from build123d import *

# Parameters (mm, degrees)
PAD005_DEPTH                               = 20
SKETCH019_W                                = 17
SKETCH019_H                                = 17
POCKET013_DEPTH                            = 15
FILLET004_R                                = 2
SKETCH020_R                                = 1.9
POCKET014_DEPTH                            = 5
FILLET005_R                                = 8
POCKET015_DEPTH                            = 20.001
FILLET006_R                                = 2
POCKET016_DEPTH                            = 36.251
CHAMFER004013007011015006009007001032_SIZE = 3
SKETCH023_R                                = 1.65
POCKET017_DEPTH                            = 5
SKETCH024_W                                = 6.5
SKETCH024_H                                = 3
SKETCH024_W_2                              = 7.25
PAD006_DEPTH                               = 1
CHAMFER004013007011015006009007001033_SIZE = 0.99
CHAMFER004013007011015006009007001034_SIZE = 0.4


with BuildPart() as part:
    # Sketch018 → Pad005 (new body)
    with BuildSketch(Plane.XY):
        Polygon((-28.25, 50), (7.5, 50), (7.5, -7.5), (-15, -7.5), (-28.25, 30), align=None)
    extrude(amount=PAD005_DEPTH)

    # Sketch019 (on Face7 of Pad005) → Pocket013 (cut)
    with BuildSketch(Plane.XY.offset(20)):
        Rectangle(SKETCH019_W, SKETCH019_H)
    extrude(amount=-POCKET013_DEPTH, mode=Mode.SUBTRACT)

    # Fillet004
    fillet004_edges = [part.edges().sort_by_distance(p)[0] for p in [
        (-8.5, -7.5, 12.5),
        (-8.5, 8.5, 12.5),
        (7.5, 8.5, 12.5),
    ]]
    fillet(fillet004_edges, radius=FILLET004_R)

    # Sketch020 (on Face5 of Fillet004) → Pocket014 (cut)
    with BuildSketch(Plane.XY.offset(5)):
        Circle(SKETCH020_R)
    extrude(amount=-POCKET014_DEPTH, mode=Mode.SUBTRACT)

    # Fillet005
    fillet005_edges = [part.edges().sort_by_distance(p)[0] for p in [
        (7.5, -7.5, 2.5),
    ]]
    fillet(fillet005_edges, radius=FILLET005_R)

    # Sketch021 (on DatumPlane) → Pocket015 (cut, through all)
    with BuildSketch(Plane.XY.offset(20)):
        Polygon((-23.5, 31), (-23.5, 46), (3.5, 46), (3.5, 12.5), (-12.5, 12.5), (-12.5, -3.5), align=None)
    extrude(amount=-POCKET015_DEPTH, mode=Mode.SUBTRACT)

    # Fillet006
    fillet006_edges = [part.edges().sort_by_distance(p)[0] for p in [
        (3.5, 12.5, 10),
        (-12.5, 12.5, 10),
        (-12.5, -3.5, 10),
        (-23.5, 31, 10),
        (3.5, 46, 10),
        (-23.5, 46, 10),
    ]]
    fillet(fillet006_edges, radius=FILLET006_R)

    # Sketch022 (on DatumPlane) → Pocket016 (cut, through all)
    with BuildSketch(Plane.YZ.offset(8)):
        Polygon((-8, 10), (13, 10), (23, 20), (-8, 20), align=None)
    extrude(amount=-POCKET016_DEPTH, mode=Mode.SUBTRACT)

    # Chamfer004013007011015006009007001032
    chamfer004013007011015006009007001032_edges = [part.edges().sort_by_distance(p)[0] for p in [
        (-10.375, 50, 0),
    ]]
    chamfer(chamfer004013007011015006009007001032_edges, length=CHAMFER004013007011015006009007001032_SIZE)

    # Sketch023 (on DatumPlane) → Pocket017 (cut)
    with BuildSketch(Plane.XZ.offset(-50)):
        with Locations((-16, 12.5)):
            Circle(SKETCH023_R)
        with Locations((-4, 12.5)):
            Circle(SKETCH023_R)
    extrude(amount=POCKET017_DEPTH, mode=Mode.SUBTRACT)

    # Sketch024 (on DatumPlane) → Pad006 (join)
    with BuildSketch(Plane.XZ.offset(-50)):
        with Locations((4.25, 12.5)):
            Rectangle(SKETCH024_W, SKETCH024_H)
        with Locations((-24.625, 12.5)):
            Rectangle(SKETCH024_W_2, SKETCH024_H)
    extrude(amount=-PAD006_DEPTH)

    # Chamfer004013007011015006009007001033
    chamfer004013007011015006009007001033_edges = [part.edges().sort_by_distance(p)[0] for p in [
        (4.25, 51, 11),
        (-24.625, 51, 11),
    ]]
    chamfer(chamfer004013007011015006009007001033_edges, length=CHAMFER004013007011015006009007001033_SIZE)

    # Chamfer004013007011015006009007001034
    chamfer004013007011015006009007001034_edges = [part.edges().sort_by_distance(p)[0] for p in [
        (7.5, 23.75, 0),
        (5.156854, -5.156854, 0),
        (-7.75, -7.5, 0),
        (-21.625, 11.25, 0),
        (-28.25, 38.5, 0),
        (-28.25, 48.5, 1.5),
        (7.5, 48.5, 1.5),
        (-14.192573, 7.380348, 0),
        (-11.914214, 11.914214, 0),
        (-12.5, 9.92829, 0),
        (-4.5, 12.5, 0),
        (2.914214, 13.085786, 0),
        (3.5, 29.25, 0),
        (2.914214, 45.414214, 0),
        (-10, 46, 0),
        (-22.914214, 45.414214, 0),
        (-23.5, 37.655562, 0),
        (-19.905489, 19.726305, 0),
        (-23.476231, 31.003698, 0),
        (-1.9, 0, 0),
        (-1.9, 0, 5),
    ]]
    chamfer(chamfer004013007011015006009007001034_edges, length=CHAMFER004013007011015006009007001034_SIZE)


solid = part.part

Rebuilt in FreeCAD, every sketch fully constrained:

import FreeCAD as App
import Part
import Sketcher
Q = App.Units.Quantity


def edges_at(feature, points):
    """Names of the edges that pass closest to the given points."""
    edges = feature.Shape.Edges
    near = lambda p: min(range(len(edges)), key=lambda i: edges[i].distToShape(Part.Vertex(*p))[0])
    return sorted({f"Edge{near(p) + 1}" for p in points})


def add_polygon(sketch, points):
    """Adds a closed chain of lines whose ends are joined by coincident constraints."""
    first, n = sketch.GeometryCount, len(points)
    for a, b in zip(points, points[1:] + points[:1]):
        sketch.addGeometry(Part.LineSegment(App.Vector(*a, 0), App.Vector(*b, 0)), False)
    for i in range(n):
        sketch.addConstraint(Sketcher.Constraint("Coincident", first + i, 2, first + (i + 1) % n, 1))

doc = App.newDocument("Part")
params = doc.addObject("Spreadsheet::Sheet", "Params")
for row, (alias, value) in enumerate([
    ("sketch1_height", "20 mm"),
    ("sketch1_width", "22.5 mm"),
    ("sketch1_height2", "57.5 mm"),
    ("sketch1_width2", "35.75 mm"),
    ("pad1_length", "20 mm"),
    ("sketch2_width", "17 mm"),
    ("pocket1_length", "15 mm"),
    ("fillet_radius", "2 mm"),
    ("sketch3_diameter", "3.8 mm"),
    ("pocket2_length", "5 mm"),
    ("fillet2_radius", "8 mm"),
    ("sketch4_width", "16 mm"),
    ("sketch4_width2", "27 mm"),
    ("sketch4_height", "15 mm"),
    ("sketch4_height2", "33.5 mm"),
    ("fillet3_radius", "2 mm"),
    ("sketch5_width", "21 mm"),
    ("sketch5_width2", "31 mm"),
    ("sketch5_height", "10 mm"),
    ("chamfer_size", "3 mm"),
    ("sketch6_diameter", "3.3 mm"),
    ("pocket5_length", "5 mm"),
    ("sketch7_height", "3 mm"),
    ("sketch7_width", "6.5 mm"),
    ("sketch7_width2", "7.25 mm"),
    ("pad2_length", "1 mm"),
    ("chamfer2_size", "0.99 mm"),
    ("chamfer3_size", "0.4 mm"),
], start=1):
    params.set(f"A{row}", alias)
    params.set(f"B{row}", "=" + value)
    params.setAlias(f"B{row}", alias)

body = doc.addObject("PartDesign::Body", "Body")

# Sketch on XY plane
sketch1 = doc.addObject("Sketcher::SketchObject", "Sketch")
body.addObject(sketch1)
sketch1.AttachmentSupport = (doc.XY_Plane, [""])
sketch1.MapMode = "FlatFace"
add_polygon(sketch1, [(7.5, 50), (-28.25, 50), (-28.25, 30), (-15, -7.5), (7.5, -7.5)])  # lines 0-4
sketch1.addConstraint([
    Sketcher.Constraint("Horizontal", 0),
    Sketcher.Constraint("Vertical", 1),
    Sketcher.Constraint("Horizontal", 3),
    Sketcher.Constraint("Vertical", 4),
    Sketcher.Constraint("DistanceY", 1, 2, 1, 1, Q("20 mm")),
    Sketcher.Constraint("DistanceX", 3, 1, 3, 2, Q("22.5 mm")),
    Sketcher.Constraint("DistanceY", 4, 1, 4, 2, Q("57.5 mm")),
    Sketcher.Constraint("DistanceY", -1, 1, 0, 2, Q("50 mm")),
    Sketcher.Constraint("DistanceX", 2, 2, -1, 1, Q("15 mm")),
    Sketcher.Constraint("DistanceX", 0, 2, 0, 1, Q("35.75 mm")),
])
sketch1.setExpression("Constraints[9]", "Params.sketch1_height")
sketch1.setExpression("Constraints[10]", "Params.sketch1_width")
sketch1.setExpression("Constraints[11]", "Params.sketch1_height2")
sketch1.setExpression("Constraints[14]", "Params.sketch1_width2")
pad1 = doc.addObject("PartDesign::Pad", "Pad")
body.addObject(pad1)
pad1.Profile = sketch1
pad1.setExpression("Length", "Params.pad1_length")

# Sketch on XY plane
sketch2 = doc.addObject("Sketcher::SketchObject", "Sketch001")
body.addObject(sketch2)
sketch2.AttachmentSupport = (doc.XY_Plane, [""])
sketch2.MapMode = "FlatFace"
sketch2.AttachmentOffset = App.Placement(App.Vector(0, 0, 20), App.Rotation())
add_polygon(sketch2, [(-8.5, 8.5), (-8.5, -8.5), (8.5, -8.5), (8.5, 8.5)])  # lines 0-3
sketch2.addConstraint([
    Sketcher.Constraint("Vertical", 0),
    Sketcher.Constraint("Horizontal", 1),
    Sketcher.Constraint("Vertical", 2),
    Sketcher.Constraint("Horizontal", 3),
    Sketcher.Constraint("Symmetric", 0, 2, 2, 2, -1, 1),
    Sketcher.Constraint("Equal", 3, 0),
    Sketcher.Constraint("DistanceX", 1, 1, 1, 2, Q("17 mm")),
])
sketch2.setExpression("Constraints[10]", "Params.sketch2_width")
pocket1 = doc.addObject("PartDesign::Pocket", "Pocket")
body.addObject(pocket1)
pocket1.Profile = sketch2
pocket1.setExpression("Length", "Params.pocket1_length")
doc.recompute()

fillet = doc.addObject("PartDesign::Fillet", "Fillet")
body.addObject(fillet)
fillet.Base = (pocket1, edges_at(pocket1, [(-8.5, -7.5, 12.5), (-8.5, 8.5, 12.5), (7.5, 8.5, 12.5)]))
fillet.setExpression("Radius", "Params.fillet_radius")

# Sketch on XY plane
sketch3 = doc.addObject("Sketcher::SketchObject", "Sketch002")
body.addObject(sketch3)
sketch3.AttachmentSupport = (doc.XY_Plane, [""])
sketch3.MapMode = "FlatFace"
sketch3.AttachmentOffset = App.Placement(App.Vector(0, 0, 5), App.Rotation())
sketch3.addGeometry(Part.Circle(App.Vector(0, 0, 0), App.Vector(0, 0, 1), 1.9), False)
sketch3.addConstraint([
    Sketcher.Constraint("Coincident", 0, 3, -1, 1),
    Sketcher.Constraint("Diameter", 0, Q("3.8 mm")),
])
sketch3.setExpression("Constraints[1]", "Params.sketch3_diameter")
pocket2 = doc.addObject("PartDesign::Pocket", "Pocket001")
body.addObject(pocket2)
pocket2.Profile = sketch3
pocket2.setExpression("Length", "Params.pocket2_length")
doc.recompute()

fillet2 = doc.addObject("PartDesign::Fillet", "Fillet001")
body.addObject(fillet2)
fillet2.Base = (pocket2, edges_at(pocket2, [(7.5, -7.5, 2.5)]))
fillet2.setExpression("Radius", "Params.fillet2_radius")

# Sketch on XY plane
sketch4 = doc.addObject("Sketcher::SketchObject", "Sketch003")
body.addObject(sketch4)
sketch4.AttachmentSupport = (doc.XY_Plane, [""])
sketch4.MapMode = "FlatFace"
sketch4.AttachmentOffset = App.Placement(App.Vector(0, 0, 20), App.Rotation())
add_polygon(sketch4, [(-23.5, 46), (-23.5, 31), (-12.5, -3.5), (-12.5, 12.5), (3.5, 12.5), (3.5, 46)])  # lines 0-5
sketch4.addConstraint([
    Sketcher.Constraint("Vertical", 0),
    Sketcher.Constraint("Vertical", 2),
    Sketcher.Constraint("Horizontal", 3),
    Sketcher.Constraint("Vertical", 4),
    Sketcher.Constraint("Horizontal", 5),
    Sketcher.Constraint("Equal", 3, 2),
    Sketcher.Constraint("DistanceX", 3, 1, 3, 2, Q("16 mm")),
    Sketcher.Constraint("DistanceX", 5, 2, 5, 1, Q("27 mm")),
    Sketcher.Constraint("DistanceY", 0, 2, 0, 1, Q("15 mm")),
    Sketcher.Constraint("DistanceY", 4, 1, 4, 2, Q("33.5 mm")),
    Sketcher.Constraint("DistanceY", -1, 1, 0, 2, Q("31 mm")),
    Sketcher.Constraint("DistanceX", 0, 2, -1, 1, Q("23.5 mm")),
])
sketch4.setExpression("Constraints[12]", "Params.sketch4_width")
sketch4.setExpression("Constraints[13]", "Params.sketch4_width2")
sketch4.setExpression("Constraints[14]", "Params.sketch4_height")
sketch4.setExpression("Constraints[15]", "Params.sketch4_height2")
pocket3 = doc.addObject("PartDesign::Pocket", "Pocket002")
body.addObject(pocket3)
pocket3.Profile = sketch4
pocket3.Type = "ThroughAll"
doc.recompute()

fillet3 = doc.addObject("PartDesign::Fillet", "Fillet002")
body.addObject(fillet3)
fillet3.Base = (pocket3, edges_at(pocket3, [
    (3.5, 12.5, 10),
    (-12.5, 12.5, 10),
    (-12.5, -3.5, 10),
    (-23.5, 31, 10),
    (3.5, 46, 10),
    (-23.5, 46, 10),
]))
fillet3.setExpression("Radius", "Params.fillet3_radius")

# Sketch on YZ plane
sketch5 = doc.addObject("Sketcher::SketchObject", "Sketch004")
body.addObject(sketch5)
sketch5.AttachmentSupport = (doc.YZ_Plane, [""])
sketch5.MapMode = "FlatFace"
sketch5.AttachmentOffset = App.Placement(App.Vector(0, 0, 8), App.Rotation())
add_polygon(sketch5, [(-8, 10), (13, 10), (23, 20), (-8, 20)])  # lines 0-3
sketch5.addConstraint([
    Sketcher.Constraint("Horizontal", 0),
    Sketcher.Constraint("Horizontal", 2),
    Sketcher.Constraint("Vertical", 3),
    Sketcher.Constraint("DistanceX", 0, 1, 0, 2, Q("21 mm")),
    Sketcher.Constraint("DistanceX", 2, 2, 2, 1, Q("31 mm")),
    Sketcher.Constraint("DistanceY", 3, 2, 3, 1, Q("10 mm")),
    Sketcher.Constraint("DistanceX", -1, 1, 0, 2, Q("13 mm")),
    Sketcher.Constraint("DistanceY", -1, 1, 0, 2, Q("10 mm")),
])
sketch5.setExpression("Constraints[7]", "Params.sketch5_width")
sketch5.setExpression("Constraints[8]", "Params.sketch5_width2")
sketch5.setExpression("Constraints[9]", "Params.sketch5_height")
pocket4 = doc.addObject("PartDesign::Pocket", "Pocket003")
body.addObject(pocket4)
pocket4.Profile = sketch5
pocket4.Type = "ThroughAll"
doc.recompute()

chamfer = doc.addObject("PartDesign::Chamfer", "Chamfer")
body.addObject(chamfer)
chamfer.Base = (pocket4, edges_at(pocket4, [(-10.375, 50, 0)]))
chamfer.setExpression("Size", "Params.chamfer_size")

# Sketch on XZ plane
sketch6 = doc.addObject("Sketcher::SketchObject", "Sketch005")
body.addObject(sketch6)
sketch6.AttachmentSupport = (doc.XZ_Plane, [""])
sketch6.MapMode = "FlatFace"
sketch6.AttachmentOffset = App.Placement(App.Vector(0, 0, -50), App.Rotation())
sketch6.addGeometry([
    Part.Circle(App.Vector(-16, 12.5, 0), App.Vector(0, 0, 1), 1.65),
    Part.Circle(App.Vector(-4, 12.5, 0), App.Vector(0, 0, 1), 1.65),
], False)
sketch6.addConstraint([
    Sketcher.Constraint("Equal", 0, 1),
    Sketcher.Constraint("Horizontal", 0, 3, 1, 3),
    Sketcher.Constraint("Diameter", 0, Q("3.3 mm")),
    Sketcher.Constraint("DistanceX", 0, 3, -1, 1, Q("16 mm")),
    Sketcher.Constraint("DistanceX", 1, 3, -1, 1, Q("4 mm")),
    Sketcher.Constraint("DistanceY", -1, 1, 0, 3, Q("12.5 mm")),
])
sketch6.setExpression("Constraints[2]", "Params.sketch6_diameter")
pocket5 = doc.addObject("PartDesign::Pocket", "Pocket004")
body.addObject(pocket5)
pocket5.Profile = sketch6
pocket5.setExpression("Length", "Params.pocket5_length")
pocket5.Reversed = True

# Sketch on XZ plane
sketch7 = doc.addObject("Sketcher::SketchObject", "Sketch006")
body.addObject(sketch7)
sketch7.AttachmentSupport = (doc.XZ_Plane, [""])
sketch7.MapMode = "FlatFace"
sketch7.AttachmentOffset = App.Placement(App.Vector(0, 0, -50), App.Rotation())
add_polygon(sketch7, [(1, 14), (1, 11), (7.5, 11), (7.5, 14)])  # lines 0-3
add_polygon(sketch7, [(-28.25, 14), (-28.25, 11), (-21, 11), (-21, 14)])  # lines 4-7
sketch7.addConstraint([
    Sketcher.Constraint("Vertical", 0),
    Sketcher.Constraint("Horizontal", 1),
    Sketcher.Constraint("Vertical", 2),
    Sketcher.Constraint("Horizontal", 3),
    Sketcher.Constraint("Vertical", 4),
    Sketcher.Constraint("Horizontal", 5),
    Sketcher.Constraint("Vertical", 6),
    Sketcher.Constraint("Horizontal", 7),
    Sketcher.Constraint("Horizontal", 1, 2, 4, 2),
    Sketcher.Constraint("Horizontal", 3, 2, 6, 2),
    Sketcher.Constraint("DistanceY", 0, 2, 0, 1, Q("3 mm")),
    Sketcher.Constraint("DistanceX", 1, 1, 1, 2, Q("6.5 mm")),
    Sketcher.Constraint("DistanceX", -1, 1, 0, 2, Q("1 mm")),
    Sketcher.Constraint("DistanceY", -1, 1, 0, 2, Q("11 mm")),
    Sketcher.Constraint("DistanceX", 5, 2, -1, 1, Q("21 mm")),
    Sketcher.Constraint("DistanceX", 5, 1, 5, 2, Q("7.25 mm")),
])
sketch7.setExpression("Constraints[18]", "Params.sketch7_height")
sketch7.setExpression("Constraints[19]", "Params.sketch7_width")
sketch7.setExpression("Constraints[23]", "Params.sketch7_width2")
pad2 = doc.addObject("PartDesign::Pad", "Pad001")
body.addObject(pad2)
pad2.Profile = sketch7
pad2.setExpression("Length", "Params.pad2_length")
pad2.Reversed = True
doc.recompute()

chamfer2 = doc.addObject("PartDesign::Chamfer", "Chamfer001")
body.addObject(chamfer2)
chamfer2.Base = (pad2, edges_at(pad2, [(4.25, 51, 11), (-24.625, 51, 11)]))
chamfer2.setExpression("Size", "Params.chamfer2_size")
doc.recompute()

chamfer3 = doc.addObject("PartDesign::Chamfer", "Chamfer002")
body.addObject(chamfer3)
chamfer3.Base = (chamfer2, edges_at(chamfer2, [
    (7.5, 23.75, 0),
    (5.157, -5.157, 0),
    (-7.75, -7.5, 0),
    (-21.625, 11.25, 0),
    (-28.25, 38.5, 0),
    (-28.25, 48.5, 1.5),
    (7.5, 48.5, 1.5),
    (-14.193, 7.38, 0),
    (-11.914, 11.914, 0),
    (-12.5, 9.928, 0),
    (-4.5, 12.5, 0),
    (2.914, 13.086, 0),
    (3.5, 29.25, 0),
    (2.914, 45.414, 0),
    (-10, 46, 0),
    (-22.914, 45.414, 0),
    (-23.5, 37.656, 0),
    (-19.905, 19.726, 0),
    (-23.476, 31.004, 0),
    (-1.9, 0, 0),
    (-1.9, 0, 5),
]))
chamfer3.setExpression("Size", "Params.chamfer3_size")

doc.recompute()
